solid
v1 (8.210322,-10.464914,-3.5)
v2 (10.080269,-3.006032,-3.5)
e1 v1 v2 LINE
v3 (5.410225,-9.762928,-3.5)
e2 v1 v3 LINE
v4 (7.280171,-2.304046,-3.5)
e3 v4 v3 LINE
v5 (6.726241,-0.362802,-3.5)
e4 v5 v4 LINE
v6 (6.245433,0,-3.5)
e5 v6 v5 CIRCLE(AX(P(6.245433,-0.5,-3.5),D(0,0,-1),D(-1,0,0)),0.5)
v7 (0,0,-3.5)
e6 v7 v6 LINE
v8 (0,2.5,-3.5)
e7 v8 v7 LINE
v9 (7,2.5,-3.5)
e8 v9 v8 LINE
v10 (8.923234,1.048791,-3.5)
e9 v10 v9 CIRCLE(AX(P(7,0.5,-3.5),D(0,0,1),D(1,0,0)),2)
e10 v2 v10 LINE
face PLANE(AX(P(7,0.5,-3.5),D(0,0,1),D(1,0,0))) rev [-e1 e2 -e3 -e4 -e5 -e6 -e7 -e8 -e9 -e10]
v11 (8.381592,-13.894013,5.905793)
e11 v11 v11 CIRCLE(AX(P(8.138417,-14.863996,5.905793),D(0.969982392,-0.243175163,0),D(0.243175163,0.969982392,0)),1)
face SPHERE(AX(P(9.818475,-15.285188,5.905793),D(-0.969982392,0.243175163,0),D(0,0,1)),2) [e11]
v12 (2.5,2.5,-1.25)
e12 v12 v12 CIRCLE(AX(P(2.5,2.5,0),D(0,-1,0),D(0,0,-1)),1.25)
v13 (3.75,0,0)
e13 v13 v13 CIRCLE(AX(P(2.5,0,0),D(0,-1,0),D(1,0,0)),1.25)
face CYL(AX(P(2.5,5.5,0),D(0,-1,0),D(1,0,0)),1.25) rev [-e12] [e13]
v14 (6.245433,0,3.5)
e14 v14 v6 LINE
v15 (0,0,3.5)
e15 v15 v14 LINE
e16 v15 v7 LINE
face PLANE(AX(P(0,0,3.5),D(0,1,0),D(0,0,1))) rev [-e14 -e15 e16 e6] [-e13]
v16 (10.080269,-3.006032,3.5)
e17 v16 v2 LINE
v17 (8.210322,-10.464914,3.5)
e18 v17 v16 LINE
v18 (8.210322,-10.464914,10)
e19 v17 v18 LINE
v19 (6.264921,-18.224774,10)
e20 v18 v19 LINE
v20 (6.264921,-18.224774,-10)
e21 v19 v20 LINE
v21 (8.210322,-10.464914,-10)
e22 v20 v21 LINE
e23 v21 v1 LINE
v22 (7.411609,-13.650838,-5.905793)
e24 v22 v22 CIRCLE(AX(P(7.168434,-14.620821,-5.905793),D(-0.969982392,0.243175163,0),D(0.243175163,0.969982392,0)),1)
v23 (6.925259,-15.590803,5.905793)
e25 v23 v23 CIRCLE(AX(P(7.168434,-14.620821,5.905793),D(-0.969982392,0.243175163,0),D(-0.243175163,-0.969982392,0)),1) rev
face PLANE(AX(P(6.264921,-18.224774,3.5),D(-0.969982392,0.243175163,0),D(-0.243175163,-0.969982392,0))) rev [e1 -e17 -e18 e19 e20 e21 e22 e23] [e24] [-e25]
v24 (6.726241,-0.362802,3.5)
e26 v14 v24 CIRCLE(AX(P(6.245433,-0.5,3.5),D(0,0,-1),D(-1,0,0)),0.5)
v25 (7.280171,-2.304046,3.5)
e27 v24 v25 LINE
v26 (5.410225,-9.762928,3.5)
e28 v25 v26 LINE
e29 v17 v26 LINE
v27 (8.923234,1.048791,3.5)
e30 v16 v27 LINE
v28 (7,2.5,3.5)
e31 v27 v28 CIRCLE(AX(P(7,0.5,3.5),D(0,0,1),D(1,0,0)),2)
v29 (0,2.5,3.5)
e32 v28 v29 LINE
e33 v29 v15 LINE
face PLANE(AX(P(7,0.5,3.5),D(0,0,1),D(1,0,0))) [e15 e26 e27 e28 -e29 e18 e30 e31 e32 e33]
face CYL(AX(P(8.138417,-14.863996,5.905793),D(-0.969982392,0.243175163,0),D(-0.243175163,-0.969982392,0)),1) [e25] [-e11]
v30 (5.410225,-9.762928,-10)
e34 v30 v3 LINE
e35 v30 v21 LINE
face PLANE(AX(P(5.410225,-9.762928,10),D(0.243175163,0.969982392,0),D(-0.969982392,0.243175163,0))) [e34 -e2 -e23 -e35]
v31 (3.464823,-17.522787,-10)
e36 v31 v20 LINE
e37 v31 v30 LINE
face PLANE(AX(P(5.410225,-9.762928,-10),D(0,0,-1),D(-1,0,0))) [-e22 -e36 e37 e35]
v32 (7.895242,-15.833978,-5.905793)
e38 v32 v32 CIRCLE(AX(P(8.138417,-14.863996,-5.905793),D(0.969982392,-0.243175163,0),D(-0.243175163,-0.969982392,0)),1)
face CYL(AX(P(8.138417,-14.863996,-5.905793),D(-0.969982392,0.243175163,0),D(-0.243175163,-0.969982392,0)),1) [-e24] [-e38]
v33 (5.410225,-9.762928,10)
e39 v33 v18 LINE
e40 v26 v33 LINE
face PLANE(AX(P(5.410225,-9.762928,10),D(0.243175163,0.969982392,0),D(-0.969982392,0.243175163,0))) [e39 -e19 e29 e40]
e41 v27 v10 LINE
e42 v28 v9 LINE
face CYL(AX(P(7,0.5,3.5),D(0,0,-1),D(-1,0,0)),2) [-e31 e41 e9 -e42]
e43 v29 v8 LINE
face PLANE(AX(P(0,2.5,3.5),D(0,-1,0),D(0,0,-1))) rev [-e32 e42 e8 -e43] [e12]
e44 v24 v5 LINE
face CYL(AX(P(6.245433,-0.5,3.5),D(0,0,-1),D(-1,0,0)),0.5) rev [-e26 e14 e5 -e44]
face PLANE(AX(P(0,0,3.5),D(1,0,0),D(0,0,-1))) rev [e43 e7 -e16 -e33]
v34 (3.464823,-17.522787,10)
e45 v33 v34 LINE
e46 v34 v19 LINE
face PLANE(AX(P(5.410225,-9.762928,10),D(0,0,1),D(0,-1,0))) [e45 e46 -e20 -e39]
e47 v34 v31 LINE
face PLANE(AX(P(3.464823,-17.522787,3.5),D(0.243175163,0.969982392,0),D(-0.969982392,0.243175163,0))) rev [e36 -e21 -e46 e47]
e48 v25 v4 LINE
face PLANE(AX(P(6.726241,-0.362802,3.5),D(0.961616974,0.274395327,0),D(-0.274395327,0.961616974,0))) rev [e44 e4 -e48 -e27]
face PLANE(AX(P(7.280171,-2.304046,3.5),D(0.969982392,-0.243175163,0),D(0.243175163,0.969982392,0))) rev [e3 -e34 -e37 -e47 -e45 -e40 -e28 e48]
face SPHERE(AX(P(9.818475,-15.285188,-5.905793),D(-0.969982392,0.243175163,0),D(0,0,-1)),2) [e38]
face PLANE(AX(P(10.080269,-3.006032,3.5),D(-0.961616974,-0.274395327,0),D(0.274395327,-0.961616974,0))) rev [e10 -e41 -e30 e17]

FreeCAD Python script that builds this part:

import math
import FreeCAD as App
import Part
import Sketcher

V = App.Vector


def add_polygon(sketch, points):
    """Adds a closed chain of lines whose ends are joined by coincident constraints."""
    first, n = sketch.GeometryCount, len(points)
    for a, b in zip(points, points[1:] + points[:1]):
        sketch.addGeometry(Part.LineSegment(App.Vector(*a, 0), App.Vector(*b, 0)), False)
    for i in range(n):
        sketch.addConstraint(Sketcher.Constraint("Coincident", first + i, 2, first + (i + 1) % n, 1))

doc = App.newDocument("Part")
body = doc.addObject("PartDesign::Body", "Body")

sketch1 = doc.addObject("Sketcher::SketchObject", "Sketch")
body.addObject(sketch1)
sketch1.AttachmentSupport = (doc.XY_Plane, [""])
sketch1.MapMode = "FlatFace"
sketch1.addGeometry([
    Part.LineSegment(V(0, 0, 0), V(6.245433, 0, 0)),
    Part.ArcOfCircle(Part.Circle(V(6.245433, -0.5, 0), V(0, 0, 1), 0.5), math.radians(15.925983), math.radians(90)),
    Part.LineSegment(V(6.726241, -0.362802, 0), V(7.280171, -2.304046, 0)),
    Part.LineSegment(V(7.280171, -2.304046, 0), V(3.464823, -17.522787, 0)),
    Part.LineSegment(V(3.464823, -17.522787, 0), V(6.264921, -18.224774, 0)),
    Part.LineSegment(V(6.264921, -18.224774, 0), V(10.080269, -3.006032, 0)),
    Part.LineSegment(V(10.080269, -3.006032, 0), V(8.923234, 1.048791, 0)),
    Part.ArcOfCircle(Part.Circle(V(7, 0.5, 0), V(0, 0, 1), 2), math.radians(15.925983), math.radians(90)),
    Part.LineSegment(V(7, 2.5, 0), V(0, 2.5, 0)),
    Part.LineSegment(V(0, 2.5, 0), V(0, 0, 0)),
], False)
sketch1.addConstraint([
    Sketcher.Constraint("Tangent", 0, 2, 1, 2),
    Sketcher.Constraint("Tangent", 1, 1, 2, 1),
    Sketcher.Constraint("Coincident", 2, 2, 3, 1),
    Sketcher.Constraint("Coincident", 3, 2, 4, 1),
    Sketcher.Constraint("Coincident", 4, 2, 5, 1),
    Sketcher.Constraint("Coincident", 5, 2, 6, 1),
    Sketcher.Constraint("Tangent", 6, 2, 7, 1),
    Sketcher.Constraint("Tangent", 7, 2, 8, 1),
    Sketcher.Constraint("Coincident", 8, 2, 9, 1),
    Sketcher.Constraint("Coincident", 9, 2, 0, 1),
    Sketcher.Constraint("Horizontal", 0),
    Sketcher.Constraint("Horizontal", 8),
    Sketcher.Constraint("Vertical", 9),
    Sketcher.Constraint("Coincident", 9, 2, -1, 1),
    Sketcher.Constraint("Perpendicular", 3, 4),
    Sketcher.Constraint("Perpendicular", 4, 5),
    Sketcher.Constraint("Parallel", 2, 6),
    Sketcher.Constraint("Equal", 3, 5),
    Sketcher.Constraint("Radius", 7, 2.0),
    Sketcher.Constraint("Radius", 1, 0.5),
    Sketcher.Constraint("DistanceX", 8, 2, 8, 1, 7.0),
    Sketcher.Constraint("DistanceY", 9, 2, 9, 1, 2.5),
    Sketcher.Constraint("DistanceX", 0, 2, 6, 2, 2.677801),
    Sketcher.Constraint("Distance", 2, 2.018728),
    Sketcher.Constraint("Distance", 3, 15.689709),
    Sketcher.Constraint("Distance", 4, 2.886751),
    Sketcher.Constraint("Distance", 6, 4.216671),
])
pad1 = doc.addObject("PartDesign::Pad", "Pad")
body.addObject(pad1)
pad1.Profile = sketch1
pad1.Length = 7
pad1.Midplane = True

sketch2 = doc.addObject("Sketcher::SketchObject", "Sketch001")
body.addObject(sketch2)
sketch2.AttachmentSupport = (doc.XZ_Plane, [""])
sketch2.MapMode = "FlatFace"
sketch2.addGeometry(Part.Circle(V(2.5, 0, 0), V(0, 0, 1), 1.25), False)
sketch2.addConstraint([
    Sketcher.Constraint("PointOnObject", 0, 3, -1),
    Sketcher.Constraint("Diameter", 0, 2.5),
    Sketcher.Constraint("DistanceX", -1, 1, 0, 3, 2.5),
])
pocket1 = doc.addObject("PartDesign::Pocket", "Pocket")
body.addObject(pocket1)
pocket1.Profile = sketch2
pocket1.Length = 5.5

sketch3 = doc.addObject("Sketcher::SketchObject", "Sketch002")
body.addObject(sketch3)
sketch3.Placement = App.Placement(V(10.19323, -2.555449, 0), App.Rotation(V(0, 0, -1), V(0.243175163, 0.969982392, 0), V(0.969982392, -0.243175163, 0), "ZXY"))
add_polygon(sketch3, [(-10, -8.154236), (-10, -16.154236), (10, -16.154236), (10, -8.154236)])
sketch3.addConstraint([
    Sketcher.Constraint("Vertical", 0),
    Sketcher.Constraint("Horizontal", 1),
    Sketcher.Constraint("Vertical", 2),
    Sketcher.Constraint("Horizontal", 3),
    Sketcher.Constraint("DistanceX", 1, 1, 1, 2, 20.0),
    Sketcher.Constraint("DistanceY", 0, 2, 0, 1, 8.0),
    Sketcher.Constraint("DistanceX", 0, 2, -1, 1, 10.0),
    Sketcher.Constraint("DistanceY", 0, 2, -1, 1, 16.154236),
])
pad2 = doc.addObject("PartDesign::Pad", "Pad001")
body.addObject(pad2)
pad2.Profile = sketch3
pad2.Length = 2.886751
pad2.Reversed = True

sketch4 = doc.addObject("Sketcher::SketchObject", "Sketch003")
body.addObject(sketch4)
sketch4.Placement = App.Placement(V(10.19323, -2.555449, 0), App.Rotation(V(0, 0, -1), V(0.243175163, 0.969982392, 0), V(0.969982392, -0.243175163, 0), "ZXY"))
sketch4.addGeometry(Part.Circle(V(-5.905793, -12.438753, 0), V(0, 0, 1), 1), False)
sketch4.addConstraint([
    Sketcher.Constraint("Diameter", 0, 2.0),
    Sketcher.Constraint("DistanceX", 0, 3, -1, 1, 5.905793),
    Sketcher.Constraint("DistanceY", 0, 3, -1, 1, 12.438753),
])
pad3 = doc.addObject("PartDesign::Pad", "Pad002")
body.addObject(pad3)
pad3.Profile = sketch4
pad3.Length = 1

sketch5 = doc.addObject("Sketcher::SketchObject", "Sketch004")
body.addObject(sketch5)
sketch5.Placement = App.Placement(V(-3.024796, -12.065372, 0), App.Rotation(V(-0.969982392, 0.243175163, 0), V(0, 0, 1.000000001), V(0.243175163, 0.969982392, 0), "ZXY"))
sketch5.addGeometry([
    Part.LineSegment(V(-15.240726, 5.905793, 0), V(-11.508676, 5.905793, 0)),
    Part.LineSegment(V(-11.508676, 5.905793, 0), V(-11.508676, 6.905793, 0)),
    Part.ArcOfCircle(Part.Circle(V(-13.240726, 5.905793, 0), V(0, 0, 1), 2), math.radians(30), math.radians(180)),
], False)
sketch5.addGeometry(Part.LineSegment(V(-11.508676, 5.905793, 0), V(-15.240726, 5.905793, 0)), True)
sketch5.addConstraint([
    Sketcher.Constraint("Coincident", 0, 2, 1, 1),
    Sketcher.Constraint("Coincident", 1, 2, 2, 1),
    Sketcher.Constraint("Coincident", 2, 2, 0, 1),
    Sketcher.Constraint("Horizontal", 0),
    Sketcher.Constraint("Vertical", 1),
    Sketcher.Constraint("Horizontal", 3),
    Sketcher.Constraint("Coincident", 3, 1, 0, 2),
    Sketcher.Constraint("Horizontal", 2, 3, 0, 2),
    Sketcher.Constraint("Equal", 0, 3),
    Sketcher.Constraint("Radius", 2, 2.0),
    Sketcher.Constraint("DistanceY", 1, 1, 1, 2, 1.0),
    Sketcher.Constraint("DistanceX", 2, 3, -1, 1, 13.240726),
    Sketcher.Constraint("DistanceY", -1, 1, 2, 3, 5.905793),
])
revolution = doc.addObject("PartDesign::Revolution", "Revolution")
body.addObject(revolution)
revolution.Profile = sketch5
revolution.ReferenceAxis = (sketch5, ["Axis0"])
revolution.Angle = 360
doc.recompute()

mirrored = doc.addObject("PartDesign::Mirrored", "Mirrored")
body.addObject(mirrored)
mirrored.Originals = [pad3, revolution]
mirrored.MirrorPlane = (doc.XY_Plane, [""])
body.Tip = mirrored

doc.recompute()
